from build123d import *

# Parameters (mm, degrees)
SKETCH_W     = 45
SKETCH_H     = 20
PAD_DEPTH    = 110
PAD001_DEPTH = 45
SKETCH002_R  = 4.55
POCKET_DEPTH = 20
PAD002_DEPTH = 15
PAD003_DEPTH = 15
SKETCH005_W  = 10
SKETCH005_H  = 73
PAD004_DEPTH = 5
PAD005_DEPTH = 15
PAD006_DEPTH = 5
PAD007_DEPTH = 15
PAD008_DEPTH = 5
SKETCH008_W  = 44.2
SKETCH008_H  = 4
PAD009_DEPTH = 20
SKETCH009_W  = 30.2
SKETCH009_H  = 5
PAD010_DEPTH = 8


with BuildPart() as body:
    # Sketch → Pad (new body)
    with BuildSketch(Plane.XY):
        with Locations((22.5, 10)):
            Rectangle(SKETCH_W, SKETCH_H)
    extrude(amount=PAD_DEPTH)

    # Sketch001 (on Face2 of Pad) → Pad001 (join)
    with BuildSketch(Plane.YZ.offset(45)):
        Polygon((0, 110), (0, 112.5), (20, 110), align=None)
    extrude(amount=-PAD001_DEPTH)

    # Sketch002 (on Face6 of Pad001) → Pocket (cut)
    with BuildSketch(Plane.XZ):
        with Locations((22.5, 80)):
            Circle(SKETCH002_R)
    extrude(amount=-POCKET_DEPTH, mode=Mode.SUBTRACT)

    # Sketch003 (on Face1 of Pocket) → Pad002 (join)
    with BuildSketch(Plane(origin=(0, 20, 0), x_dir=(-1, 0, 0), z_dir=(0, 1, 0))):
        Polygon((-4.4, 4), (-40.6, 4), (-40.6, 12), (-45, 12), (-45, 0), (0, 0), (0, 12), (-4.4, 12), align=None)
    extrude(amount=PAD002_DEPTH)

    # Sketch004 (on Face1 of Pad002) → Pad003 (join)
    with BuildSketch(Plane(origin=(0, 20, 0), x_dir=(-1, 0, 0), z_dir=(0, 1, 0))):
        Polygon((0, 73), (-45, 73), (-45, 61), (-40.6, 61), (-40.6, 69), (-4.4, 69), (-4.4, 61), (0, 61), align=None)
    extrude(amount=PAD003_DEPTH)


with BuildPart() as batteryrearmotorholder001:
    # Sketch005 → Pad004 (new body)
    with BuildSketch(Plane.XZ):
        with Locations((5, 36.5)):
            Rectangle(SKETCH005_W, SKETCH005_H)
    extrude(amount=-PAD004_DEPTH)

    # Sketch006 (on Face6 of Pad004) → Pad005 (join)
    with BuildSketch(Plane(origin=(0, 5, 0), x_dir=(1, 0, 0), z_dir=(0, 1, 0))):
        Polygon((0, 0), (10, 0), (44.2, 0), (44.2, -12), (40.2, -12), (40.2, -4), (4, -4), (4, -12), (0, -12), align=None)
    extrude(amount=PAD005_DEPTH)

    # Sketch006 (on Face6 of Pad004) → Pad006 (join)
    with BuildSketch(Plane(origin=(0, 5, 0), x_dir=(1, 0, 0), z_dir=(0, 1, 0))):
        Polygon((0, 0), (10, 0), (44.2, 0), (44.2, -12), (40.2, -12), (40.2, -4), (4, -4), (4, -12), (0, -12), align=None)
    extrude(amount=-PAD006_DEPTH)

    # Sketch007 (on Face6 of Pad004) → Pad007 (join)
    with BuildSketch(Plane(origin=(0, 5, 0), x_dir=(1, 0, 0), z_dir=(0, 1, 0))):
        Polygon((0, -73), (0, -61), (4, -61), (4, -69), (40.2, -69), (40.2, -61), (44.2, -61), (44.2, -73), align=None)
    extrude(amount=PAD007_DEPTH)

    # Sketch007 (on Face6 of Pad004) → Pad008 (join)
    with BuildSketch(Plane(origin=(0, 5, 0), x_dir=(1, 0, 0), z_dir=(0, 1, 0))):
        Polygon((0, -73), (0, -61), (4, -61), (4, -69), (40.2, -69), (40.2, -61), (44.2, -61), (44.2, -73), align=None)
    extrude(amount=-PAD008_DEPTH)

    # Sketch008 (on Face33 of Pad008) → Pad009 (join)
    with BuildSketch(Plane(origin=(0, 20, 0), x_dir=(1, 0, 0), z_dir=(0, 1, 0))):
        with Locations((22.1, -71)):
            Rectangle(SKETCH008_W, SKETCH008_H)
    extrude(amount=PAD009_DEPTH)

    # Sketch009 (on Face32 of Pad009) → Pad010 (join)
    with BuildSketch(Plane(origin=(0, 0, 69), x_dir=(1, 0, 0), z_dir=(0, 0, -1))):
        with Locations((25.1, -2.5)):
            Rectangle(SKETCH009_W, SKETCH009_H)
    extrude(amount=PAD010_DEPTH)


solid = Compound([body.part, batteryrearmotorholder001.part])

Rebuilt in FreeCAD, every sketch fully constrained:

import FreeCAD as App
import Part
import Sketcher

V = App.Vector

doc = App.newDocument("Part")
body = doc.addObject("PartDesign::Body", "Body")

# Sketch on XY plane
sketch1 = body.newObject("Sketcher::SketchObject", "Sketch")
sketch1.AttachmentSupport = (doc.getObject("XY_Plane"), [""])
sketch1.MapMode = "FlatFace"
sketch1.addGeometry([
    Part.LineSegment(V(0, 20, 0), V(0, 0, 0)),
    Part.LineSegment(V(0, 0, 0), V(45, 0, 0)),
    Part.LineSegment(V(45, 0, 0), V(45, 20, 0)),
    Part.LineSegment(V(45, 20, 0), V(0, 20, 0)),
], False)
sketch1.addConstraint([
    Sketcher.Constraint("Coincident", 0, 2, 1, 1),
    Sketcher.Constraint("Coincident", 1, 2, 2, 1),
    Sketcher.Constraint("Coincident", 2, 2, 3, 1),
    Sketcher.Constraint("Coincident", 3, 2, 0, 1),
    Sketcher.Constraint("Vertical", 0),
    Sketcher.Constraint("Horizontal", 1),
    Sketcher.Constraint("Vertical", 2),
    Sketcher.Constraint("Horizontal", 3),
    Sketcher.Constraint("Coincident", 0, 2, -1, 1),
    Sketcher.Constraint("DistanceX", 1, 1, 1, 2, 45.0),
    Sketcher.Constraint("DistanceY", 0, 2, 0, 1, 20.0),
])
pad1 = body.newObject("PartDesign::Pad", "Pad")
pad1.Profile = sketch1
pad1.Length = 110

# Sketch on YZ plane
sketch2 = body.newObject("Sketcher::SketchObject", "Sketch001")
sketch2.AttachmentSupport = (doc.getObject("YZ_Plane"), [""])
sketch2.MapMode = "FlatFace"
sketch2.AttachmentOffset = App.Placement(V(0, 0, 45), App.Rotation())
sketch2.addGeometry([
    Part.LineSegment(V(0, 112.5, 0), V(0, 110, 0)),
    Part.LineSegment(V(0, 110, 0), V(20, 110, 0)),
    Part.LineSegment(V(20, 110, 0), V(0, 112.5, 0)),
], False)
sketch2.addConstraint([
    Sketcher.Constraint("Coincident", 0, 2, 1, 1),
    Sketcher.Constraint("Coincident", 1, 2, 2, 1),
    Sketcher.Constraint("Coincident", 2, 2, 0, 1),
    Sketcher.Constraint("Vertical", 0),
    Sketcher.Constraint("Horizontal", 1),
    Sketcher.Constraint("PointOnObject", 0, 2, -2),
    Sketcher.Constraint("DistanceX", 1, 1, 1, 2, 20.0),
    Sketcher.Constraint("DistanceY", 0, 2, 0, 1, 2.5),
    Sketcher.Constraint("DistanceY", -1, 1, 0, 2, 110.0),
])
pad2 = body.newObject("PartDesign::Pad", "Pad001")
pad2.Profile = sketch2
pad2.Length = 45
pad2.Reversed = True

# Sketch on XZ plane
sketch3 = body.newObject("Sketcher::SketchObject", "Sketch002")
sketch3.AttachmentSupport = (doc.getObject("XZ_Plane"), [""])
sketch3.MapMode = "FlatFace"
sketch3.addGeometry(Part.Circle(V(22.5, 80, 0), V(0, 0, 1), 4.55), False)
sketch3.addConstraint([
    Sketcher.Constraint("Diameter", 0, 9.1),
    Sketcher.Constraint("DistanceY", -1, 1, 0, 3, 80.0),
    Sketcher.Constraint("DistanceX", -1, 1, 0, 3, 22.5),
])
pocket1 = body.newObject("PartDesign::Pocket", "Pocket")
pocket1.Profile = sketch3
pocket1.Length = 20

# Sketch on XZ plane
sketch4 = body.newObject("Sketcher::SketchObject", "Sketch003")
sketch4.AttachmentSupport = (doc.getObject("XZ_Plane"), [""])
sketch4.MapMode = "FlatFace"
sketch4.AttachmentOffset = App.Placement(V(0, 0, -20), App.Rotation())
sketch4.addGeometry([
    Part.LineSegment(V(4.4, 4, 0), V(40.6, 4, 0)),  # 0
    Part.LineSegment(V(40.6, 4, 0), V(40.6, 12, 0)),  # 1
    Part.LineSegment(V(40.6, 12, 0), V(45, 12, 0)),  # 2
    Part.LineSegment(V(45, 12, 0), V(45, 0, 0)),  # 3
    Part.LineSegment(V(45, 0, 0), V(0, 0, 0)),  # 4
    Part.LineSegment(V(0, 0, 0), V(0, 12, 0)),  # 5
    Part.LineSegment(V(0, 12, 0), V(4.4, 12, 0)),  # 6
    Part.LineSegment(V(4.4, 12, 0), V(4.4, 4, 0)),  # 7
], False)
sketch4.addConstraint([
    Sketcher.Constraint("Coincident", 0, 2, 1, 1),
    Sketcher.Constraint("Coincident", 1, 2, 2, 1),
    Sketcher.Constraint("Coincident", 2, 2, 3, 1),
    Sketcher.Constraint("Coincident", 3, 2, 4, 1),
    Sketcher.Constraint("Coincident", 4, 2, 5, 1),
    Sketcher.Constraint("Coincident", 5, 2, 6, 1),
    Sketcher.Constraint("Coincident", 6, 2, 7, 1),
    Sketcher.Constraint("Coincident", 7, 2, 0, 1),
    Sketcher.Constraint("Horizontal", 0),
    Sketcher.Constraint("Vertical", 1),
    Sketcher.Constraint("Horizontal", 2),
    Sketcher.Constraint("Vertical", 3),
    Sketcher.Constraint("Horizontal", 4),
    Sketcher.Constraint("Vertical", 5),
    Sketcher.Constraint("Horizontal", 6),
    Sketcher.Constraint("Vertical", 7),
    Sketcher.Constraint("Coincident", 4, 2, -1, 1),
    Sketcher.Constraint("Horizontal", 2, 2, 5, 2),
    Sketcher.Constraint("Equal", 2, 6),
    Sketcher.Constraint("DistanceX", 4, 2, 4, 1, 45.0),
    Sketcher.Constraint("DistanceY", 1, 1, 1, 2, 8.0),
    Sketcher.Constraint("DistanceY", 3, 2, 3, 1, 12.0),
    Sketcher.Constraint("DistanceX", 0, 1, 0, 2, 36.2),
])
pad3 = body.newObject("PartDesign::Pad", "Pad002")
pad3.Profile = sketch4
pad3.Length = 15
pad3.Reversed = True

# Sketch on XZ plane
sketch5 = body.newObject("Sketcher::SketchObject", "Sketch004")
sketch5.AttachmentSupport = (doc.getObject("XZ_Plane"), [""])
sketch5.MapMode = "FlatFace"
sketch5.AttachmentOffset = App.Placement(V(0, 0, -20), App.Rotation())
sketch5.addGeometry([
    Part.LineSegment(V(0, 73, 0), V(45, 73, 0)),  # 0
    Part.LineSegment(V(45, 73, 0), V(45, 61, 0)),  # 1
    Part.LineSegment(V(45, 61, 0), V(40.6, 61, 0)),  # 2
    Part.LineSegment(V(40.6, 61, 0), V(40.6, 69, 0)),  # 3
    Part.LineSegment(V(40.6, 69, 0), V(4.4, 69, 0)),  # 4
    Part.LineSegment(V(4.4, 69, 0), V(4.4, 61, 0)),  # 5
    Part.LineSegment(V(4.4, 61, 0), V(0, 61, 0)),  # 6
    Part.LineSegment(V(0, 61, 0), V(0, 73, 0)),  # 7
], False)
sketch5.addConstraint([
    Sketcher.Constraint("Coincident", 0, 2, 1, 1),
    Sketcher.Constraint("Coincident", 1, 2, 2, 1),
    Sketcher.Constraint("Coincident", 2, 2, 3, 1),
    Sketcher.Constraint("Coincident", 3, 2, 4, 1),
    Sketcher.Constraint("Coincident", 4, 2, 5, 1),
    Sketcher.Constraint("Coincident", 5, 2, 6, 1),
    Sketcher.Constraint("Coincident", 6, 2, 7, 1),
    Sketcher.Constraint("Coincident", 7, 2, 0, 1),
    Sketcher.Constraint("Horizontal", 0),
    Sketcher.Constraint("Vertical", 1),
    Sketcher.Constraint("Horizontal", 2),
    Sketcher.Constraint("Vertical", 3),
    Sketcher.Constraint("Horizontal", 4),
    Sketcher.Constraint("Vertical", 5),
    Sketcher.Constraint("Horizontal", 6),
    Sketcher.Constraint("Vertical", 7),
    Sketcher.Constraint("PointOnObject", 6, 2, -2),
    Sketcher.Constraint("Horizontal", 2, 2, 5, 2),
    Sketcher.Constraint("Equal", 2, 6),
    Sketcher.Constraint("DistanceX", 0, 1, 0, 2, 45.0),
    Sketcher.Constraint("DistanceY", 1, 2, 1, 1, 12.0),
    Sketcher.Constraint("DistanceY", 3, 1, 3, 2, 8.0),
    Sketcher.Constraint("DistanceX", 2, 2, 2, 1, 4.4),
    Sketcher.Constraint("DistanceY", -1, 1, 0, 2, 73.0),
])
pad4 = body.newObject("PartDesign::Pad", "Pad003")
pad4.Profile = sketch5
pad4.Length = 15
pad4.Reversed = True
body2 = doc.addObject("PartDesign::Body", "Body001")

# Sketch on XZ plane
sketch6 = body2.newObject("Sketcher::SketchObject", "Sketch005")
sketch6.AttachmentSupport = (doc.getObject("XZ_Plane001"), [""])
sketch6.MapMode = "FlatFace"
sketch6.addGeometry([
    Part.LineSegment(V(0, 73, 0), V(0, 0, 0)),
    Part.LineSegment(V(0, 0, 0), V(10, 0, 0)),
    Part.LineSegment(V(10, 0, 0), V(10, 73, 0)),
    Part.LineSegment(V(10, 73, 0), V(0, 73, 0)),
], False)
sketch6.addConstraint([
    Sketcher.Constraint("Coincident", 0, 2, 1, 1),
    Sketcher.Constraint("Coincident", 1, 2, 2, 1),
    Sketcher.Constraint("Coincident", 2, 2, 3, 1),
    Sketcher.Constraint("Coincident", 3, 2, 0, 1),
    Sketcher.Constraint("Vertical", 0),
    Sketcher.Constraint("Horizontal", 1),
    Sketcher.Constraint("Vertical", 2),
    Sketcher.Constraint("Horizontal", 3),
    Sketcher.Constraint("Coincident", 0, 2, -1, 1),
    Sketcher.Constraint("DistanceX", 1, 1, 1, 2, 10.0),
    Sketcher.Constraint("DistanceY", 0, 2, 0, 1, 73.0),
])
pad5 = body2.newObject("PartDesign::Pad", "Pad004")
pad5.Profile = sketch6
pad5.Length = 5
pad5.Reversed = True

# Sketch on XZ plane
sketch7 = body2.newObject("Sketcher::SketchObject", "Sketch006")
sketch7.AttachmentSupport = (doc.getObject("XZ_Plane001"), [""])
sketch7.MapMode = "FlatFace"
sketch7.AttachmentOffset = App.Placement(V(0, 0, -5), App.Rotation())
sketch7.addGeometry([
    Part.LineSegment(V(44.2, 0, 0), V(0, 0, 0)),  # 0
    Part.LineSegment(V(0, 0, 0), V(0, 12, 0)),  # 1
    Part.LineSegment(V(0, 12, 0), V(4, 12, 0)),  # 2
    Part.LineSegment(V(4, 12, 0), V(4, 4, 0)),  # 3
    Part.LineSegment(V(4, 4, 0), V(40.2, 4, 0)),  # 4
    Part.LineSegment(V(40.2, 4, 0), V(40.2, 12, 0)),  # 5
    Part.LineSegment(V(40.2, 12, 0), V(44.2, 12, 0)),  # 6
    Part.LineSegment(V(44.2, 12, 0), V(44.2, 0, 0)),  # 7
], False)
sketch7.addConstraint([
    Sketcher.Constraint("Coincident", 0, 2, 1, 1),
    Sketcher.Constraint("Coincident", 1, 2, 2, 1),
    Sketcher.Constraint("Coincident", 2, 2, 3, 1),
    Sketcher.Constraint("Coincident", 3, 2, 4, 1),
    Sketcher.Constraint("Coincident", 4, 2, 5, 1),
    Sketcher.Constraint("Coincident", 5, 2, 6, 1),
    Sketcher.Constraint("Coincident", 6, 2, 7, 1),
    Sketcher.Constraint("Coincident", 7, 2, 0, 1),
    Sketcher.Constraint("Horizontal", 0),
    Sketcher.Constraint("Vertical", 1),
    Sketcher.Constraint("Horizontal", 2),
    Sketcher.Constraint("Vertical", 3),
    Sketcher.Constraint("Horizontal", 4),
    Sketcher.Constraint("Vertical", 5),
    Sketcher.Constraint("Horizontal", 6),
    Sketcher.Constraint("Vertical", 7),
    Sketcher.Constraint("Coincident", 0, 2, -1, 1),
    Sketcher.Constraint("Horizontal", 2, 2, 5, 2),
    Sketcher.Constraint("Equal", 2, 6),
    Sketcher.Constraint("DistanceX", 2, 1, 2, 2, 4.0),
    Sketcher.Constraint("DistanceY", 1, 1, 1, 2, 12.0),
    Sketcher.Constraint("DistanceY", 3, 2, 3, 1, 8.0),
    Sketcher.Constraint("DistanceX", 0, 2, 0, 1, 44.2),
])
pad6 = body2.newObject("PartDesign::Pad", "Pad005")
pad6.Profile = sketch7
pad6.Length = 15
pad6.Reversed = True

# Sketch on XZ plane
sketch8 = body2.newObject("Sketcher::SketchObject", "Sketch007")
sketch8.AttachmentSupport = (doc.getObject("XZ_Plane001"), [""])
sketch8.MapMode = "FlatFace"
sketch8.AttachmentOffset = App.Placement(V(0, 0, -5), App.Rotation())
sketch8.addGeometry([
    Part.LineSegment(V(44.2, 0, 0), V(0, 0, 0)),  # 0
    Part.LineSegment(V(0, 0, 0), V(0, 12, 0)),  # 1
    Part.LineSegment(V(0, 12, 0), V(4, 12, 0)),  # 2
    Part.LineSegment(V(4, 12, 0), V(4, 4, 0)),  # 3
    Part.LineSegment(V(4, 4, 0), V(40.2, 4, 0)),  # 4
    Part.LineSegment(V(40.2, 4, 0), V(40.2, 12, 0)),  # 5
    Part.LineSegment(V(40.2, 12, 0), V(44.2, 12, 0)),  # 6
    Part.LineSegment(V(44.2, 12, 0), V(44.2, 0, 0)),  # 7
], False)
sketch8.addConstraint([
    Sketcher.Constraint("Coincident", 0, 2, 1, 1),
    Sketcher.Constraint("Coincident", 1, 2, 2, 1),
    Sketcher.Constraint("Coincident", 2, 2, 3, 1),
    Sketcher.Constraint("Coincident", 3, 2, 4, 1),
    Sketcher.Constraint("Coincident", 4, 2, 5, 1),
    Sketcher.Constraint("Coincident", 5, 2, 6, 1),
    Sketcher.Constraint("Coincident", 6, 2, 7, 1),
    Sketcher.Constraint("Coincident", 7, 2, 0, 1),
    Sketcher.Constraint("Horizontal", 0),
    Sketcher.Constraint("Vertical", 1),
    Sketcher.Constraint("Horizontal", 2),
    Sketcher.Constraint("Vertical", 3),
    Sketcher.Constraint("Horizontal", 4),
    Sketcher.Constraint("Vertical", 5),
    Sketcher.Constraint("Horizontal", 6),
    Sketcher.Constraint("Vertical", 7),
    Sketcher.Constraint("Coincident", 0, 2, -1, 1),
    Sketcher.Constraint("Horizontal", 2, 2, 5, 2),
    Sketcher.Constraint("Equal", 2, 6),
    Sketcher.Constraint("DistanceX", 2, 1, 2, 2, 4.0),
    Sketcher.Constraint("DistanceY", 1, 1, 1, 2, 12.0),
    Sketcher.Constraint("DistanceY", 3, 2, 3, 1, 8.0),
    Sketcher.Constraint("DistanceX", 0, 2, 0, 1, 44.2),
])
pad7 = body2.newObject("PartDesign::Pad", "Pad006")
pad7.Profile = sketch8
pad7.Length = 5

# Sketch on XZ plane
sketch9 = body2.newObject("Sketcher::SketchObject", "Sketch008")
sketch9.AttachmentSupport = (doc.getObject("XZ_Plane001"), [""])
sketch9.MapMode = "FlatFace"
sketch9.AttachmentOffset = App.Placement(V(0, 0, -5), App.Rotation())
sketch9.addGeometry([
    Part.LineSegment(V(0, 61, 0), V(0, 73, 0)),  # 0
    Part.LineSegment(V(0, 73, 0), V(44.2, 73, 0)),  # 1
    Part.LineSegment(V(44.2, 73, 0), V(44.2, 61, 0)),  # 2
    Part.LineSegment(V(44.2, 61, 0), V(40.2, 61, 0)),  # 3
    Part.LineSegment(V(40.2, 61, 0), V(40.2, 69, 0)),  # 4
    Part.LineSegment(V(40.2, 69, 0), V(4, 69, 0)),  # 5
    Part.LineSegment(V(4, 69, 0), V(4, 61, 0)),  # 6
    Part.LineSegment(V(4, 61, 0), V(0, 61, 0)),  # 7
], False)
sketch9.addConstraint([
    Sketcher.Constraint("Coincident", 0, 2, 1, 1),
    Sketcher.Constraint("Coincident", 1, 2, 2, 1),
    Sketcher.Constraint("Coincident", 2, 2, 3, 1),
    Sketcher.Constraint("Coincident", 3, 2, 4, 1),
    Sketcher.Constraint("Coincident", 4, 2, 5, 1),
    Sketcher.Constraint("Coincident", 5, 2, 6, 1),
    Sketcher.Constraint("Coincident", 6, 2, 7, 1),
    Sketcher.Constraint("Coincident", 7, 2, 0, 1),
    Sketcher.Constraint("Vertical", 0),
    Sketcher.Constraint("Horizontal", 1),
    Sketcher.Constraint("Vertical", 2),
    Sketcher.Constraint("Horizontal", 3),
    Sketcher.Constraint("Vertical", 4),
    Sketcher.Constraint("Horizontal", 5),
    Sketcher.Constraint("Vertical", 6),
    Sketcher.Constraint("Horizontal", 7),
    Sketcher.Constraint("PointOnObject", 0, 2, -2),
    Sketcher.Constraint("Horizontal", 3, 2, 6, 2),
    Sketcher.Constraint("Equal", 3, 7),
    Sketcher.Constraint("DistanceX", 3, 2, 3, 1, 4.0),
    Sketcher.Constraint("DistanceY", 0, 1, 0, 2, 12.0),
    Sketcher.Constraint("DistanceY", 4, 1, 4, 2, 8.0),
    Sketcher.Constraint("DistanceX", 1, 1, 1, 2, 44.2),
    Sketcher.Constraint("DistanceY", -1, 1, 0, 2, 73.0),
])
pad8 = body2.newObject("PartDesign::Pad", "Pad007")
pad8.Profile = sketch9
pad8.Length = 15
pad8.Reversed = True

# Sketch on XZ plane
sketch10 = body2.newObject("Sketcher::SketchObject", "Sketch009")
sketch10.AttachmentSupport = (doc.getObject("XZ_Plane001"), [""])
sketch10.MapMode = "FlatFace"
sketch10.AttachmentOffset = App.Placement(V(0, 0, -5), App.Rotation())
sketch10.addGeometry([
    Part.LineSegment(V(0, 61, 0), V(0, 73, 0)),  # 0
    Part.LineSegment(V(0, 73, 0), V(44.2, 73, 0)),  # 1
    Part.LineSegment(V(44.2, 73, 0), V(44.2, 61, 0)),  # 2
    Part.LineSegment(V(44.2, 61, 0), V(40.2, 61, 0)),  # 3
    Part.LineSegment(V(40.2, 61, 0), V(40.2, 69, 0)),  # 4
    Part.LineSegment(V(40.2, 69, 0), V(4, 69, 0)),  # 5
    Part.LineSegment(V(4, 69, 0), V(4, 61, 0)),  # 6
    Part.LineSegment(V(4, 61, 0), V(0, 61, 0)),  # 7
], False)
sketch10.addConstraint([
    Sketcher.Constraint("Coincident", 0, 2, 1, 1),
    Sketcher.Constraint("Coincident", 1, 2, 2, 1),
    Sketcher.Constraint("Coincident", 2, 2, 3, 1),
    Sketcher.Constraint("Coincident", 3, 2, 4, 1),
    Sketcher.Constraint("Coincident", 4, 2, 5, 1),
    Sketcher.Constraint("Coincident", 5, 2, 6, 1),
    Sketcher.Constraint("Coincident", 6, 2, 7, 1),
    Sketcher.Constraint("Coincident", 7, 2, 0, 1),
    Sketcher.Constraint("Vertical", 0),
    Sketcher.Constraint("Horizontal", 1),
    Sketcher.Constraint("Vertical", 2),
    Sketcher.Constraint("Horizontal", 3),
    Sketcher.Constraint("Vertical", 4),
    Sketcher.Constraint("Horizontal", 5),
    Sketcher.Constraint("Vertical", 6),
    Sketcher.Constraint("Horizontal", 7),
    Sketcher.Constraint("PointOnObject", 0, 2, -2),
    Sketcher.Constraint("Horizontal", 3, 2, 6, 2),
    Sketcher.Constraint("Equal", 3, 7),
    Sketcher.Constraint("DistanceX", 3, 2, 3, 1, 4.0),
    Sketcher.Constraint("DistanceY", 0, 1, 0, 2, 12.0),
    Sketcher.Constraint("DistanceY", 4, 1, 4, 2, 8.0),
    Sketcher.Constraint("DistanceX", 1, 1, 1, 2, 44.2),
    Sketcher.Constraint("DistanceY", -1, 1, 0, 2, 73.0),
])
pad9 = body2.newObject("PartDesign::Pad", "Pad008")
pad9.Profile = sketch10
pad9.Length = 5

# Sketch on XZ plane
sketch11 = body2.newObject("Sketcher::SketchObject", "Sketch010")
sketch11.AttachmentSupport = (doc.getObject("XZ_Plane001"), [""])
sketch11.MapMode = "FlatFace"
sketch11.AttachmentOffset = App.Placement(V(0, 0, -20), App.Rotation())
sketch11.addGeometry([
    Part.LineSegment(V(0, 69, 0), V(0, 73, 0)),
    Part.LineSegment(V(0, 73, 0), V(44.2, 73, 0)),
    Part.LineSegment(V(44.2, 73, 0), V(44.2, 69, 0)),
    Part.LineSegment(V(44.2, 69, 0), V(0, 69, 0)),
], False)
sketch11.addConstraint([
    Sketcher.Constraint("Coincident", 0, 2, 1, 1),
    Sketcher.Constraint("Coincident", 1, 2, 2, 1),
    Sketcher.Constraint("Coincident", 2, 2, 3, 1),
    Sketcher.Constraint("Coincident", 3, 2, 0, 1),
    Sketcher.Constraint("Vertical", 0),
    Sketcher.Constraint("Horizontal", 1),
    Sketcher.Constraint("Vertical", 2),
    Sketcher.Constraint("Horizontal", 3),
    Sketcher.Constraint("PointOnObject", 0, 2, -2),
    Sketcher.Constraint("DistanceY", 0, 1, 0, 2, 4.0),
    Sketcher.Constraint("DistanceX", 1, 1, 1, 2, 44.2),
    Sketcher.Constraint("DistanceY", -1, 1, 0, 2, 73.0),
])
pad10 = body2.newObject("PartDesign::Pad", "Pad009")
pad10.Profile = sketch11
pad10.Length = 20
pad10.Reversed = True

# Sketch on XY plane
sketch12 = body2.newObject("Sketcher::SketchObject", "Sketch011")
sketch12.AttachmentSupport = (doc.getObject("XY_Plane001"), [""])
sketch12.MapMode = "FlatFace"
sketch12.AttachmentOffset = App.Placement(V(0, 0, 69), App.Rotation())
sketch12.addGeometry([
    Part.LineSegment(V(10, 0, 0), V(10, 5, 0)),
    Part.LineSegment(V(10, 5, 0), V(40.2, 5, 0)),
    Part.LineSegment(V(40.2, 5, 0), V(40.2, 0, 0)),
    Part.LineSegment(V(40.2, 0, 0), V(10, 0, 0)),
], False)
sketch12.addConstraint([
    Sketcher.Constraint("Coincident", 0, 2, 1, 1),
    Sketcher.Constraint("Coincident", 1, 2, 2, 1),
    Sketcher.Constraint("Coincident", 2, 2, 3, 1),
    Sketcher.Constraint("Coincident", 3, 2, 0, 1),
    Sketcher.Constraint("Vertical", 0),
    Sketcher.Constraint("Horizontal", 1),
    Sketcher.Constraint("Vertical", 2),
    Sketcher.Constraint("Horizontal", 3),
    Sketcher.Constraint("PointOnObject", 2, 2, -1),
    Sketcher.Constraint("DistanceY", 0, 1, 0, 2, 5.0),
    Sketcher.Constraint("DistanceX", 1, 1, 1, 2, 30.2),
    Sketcher.Constraint("DistanceX", -1, 1, 0, 2, 10.0),
])
pad11 = body2.newObject("PartDesign::Pad", "Pad010")
pad11.Profile = sketch12
pad11.Length = 8
pad11.Reversed = True

doc.recompute()
